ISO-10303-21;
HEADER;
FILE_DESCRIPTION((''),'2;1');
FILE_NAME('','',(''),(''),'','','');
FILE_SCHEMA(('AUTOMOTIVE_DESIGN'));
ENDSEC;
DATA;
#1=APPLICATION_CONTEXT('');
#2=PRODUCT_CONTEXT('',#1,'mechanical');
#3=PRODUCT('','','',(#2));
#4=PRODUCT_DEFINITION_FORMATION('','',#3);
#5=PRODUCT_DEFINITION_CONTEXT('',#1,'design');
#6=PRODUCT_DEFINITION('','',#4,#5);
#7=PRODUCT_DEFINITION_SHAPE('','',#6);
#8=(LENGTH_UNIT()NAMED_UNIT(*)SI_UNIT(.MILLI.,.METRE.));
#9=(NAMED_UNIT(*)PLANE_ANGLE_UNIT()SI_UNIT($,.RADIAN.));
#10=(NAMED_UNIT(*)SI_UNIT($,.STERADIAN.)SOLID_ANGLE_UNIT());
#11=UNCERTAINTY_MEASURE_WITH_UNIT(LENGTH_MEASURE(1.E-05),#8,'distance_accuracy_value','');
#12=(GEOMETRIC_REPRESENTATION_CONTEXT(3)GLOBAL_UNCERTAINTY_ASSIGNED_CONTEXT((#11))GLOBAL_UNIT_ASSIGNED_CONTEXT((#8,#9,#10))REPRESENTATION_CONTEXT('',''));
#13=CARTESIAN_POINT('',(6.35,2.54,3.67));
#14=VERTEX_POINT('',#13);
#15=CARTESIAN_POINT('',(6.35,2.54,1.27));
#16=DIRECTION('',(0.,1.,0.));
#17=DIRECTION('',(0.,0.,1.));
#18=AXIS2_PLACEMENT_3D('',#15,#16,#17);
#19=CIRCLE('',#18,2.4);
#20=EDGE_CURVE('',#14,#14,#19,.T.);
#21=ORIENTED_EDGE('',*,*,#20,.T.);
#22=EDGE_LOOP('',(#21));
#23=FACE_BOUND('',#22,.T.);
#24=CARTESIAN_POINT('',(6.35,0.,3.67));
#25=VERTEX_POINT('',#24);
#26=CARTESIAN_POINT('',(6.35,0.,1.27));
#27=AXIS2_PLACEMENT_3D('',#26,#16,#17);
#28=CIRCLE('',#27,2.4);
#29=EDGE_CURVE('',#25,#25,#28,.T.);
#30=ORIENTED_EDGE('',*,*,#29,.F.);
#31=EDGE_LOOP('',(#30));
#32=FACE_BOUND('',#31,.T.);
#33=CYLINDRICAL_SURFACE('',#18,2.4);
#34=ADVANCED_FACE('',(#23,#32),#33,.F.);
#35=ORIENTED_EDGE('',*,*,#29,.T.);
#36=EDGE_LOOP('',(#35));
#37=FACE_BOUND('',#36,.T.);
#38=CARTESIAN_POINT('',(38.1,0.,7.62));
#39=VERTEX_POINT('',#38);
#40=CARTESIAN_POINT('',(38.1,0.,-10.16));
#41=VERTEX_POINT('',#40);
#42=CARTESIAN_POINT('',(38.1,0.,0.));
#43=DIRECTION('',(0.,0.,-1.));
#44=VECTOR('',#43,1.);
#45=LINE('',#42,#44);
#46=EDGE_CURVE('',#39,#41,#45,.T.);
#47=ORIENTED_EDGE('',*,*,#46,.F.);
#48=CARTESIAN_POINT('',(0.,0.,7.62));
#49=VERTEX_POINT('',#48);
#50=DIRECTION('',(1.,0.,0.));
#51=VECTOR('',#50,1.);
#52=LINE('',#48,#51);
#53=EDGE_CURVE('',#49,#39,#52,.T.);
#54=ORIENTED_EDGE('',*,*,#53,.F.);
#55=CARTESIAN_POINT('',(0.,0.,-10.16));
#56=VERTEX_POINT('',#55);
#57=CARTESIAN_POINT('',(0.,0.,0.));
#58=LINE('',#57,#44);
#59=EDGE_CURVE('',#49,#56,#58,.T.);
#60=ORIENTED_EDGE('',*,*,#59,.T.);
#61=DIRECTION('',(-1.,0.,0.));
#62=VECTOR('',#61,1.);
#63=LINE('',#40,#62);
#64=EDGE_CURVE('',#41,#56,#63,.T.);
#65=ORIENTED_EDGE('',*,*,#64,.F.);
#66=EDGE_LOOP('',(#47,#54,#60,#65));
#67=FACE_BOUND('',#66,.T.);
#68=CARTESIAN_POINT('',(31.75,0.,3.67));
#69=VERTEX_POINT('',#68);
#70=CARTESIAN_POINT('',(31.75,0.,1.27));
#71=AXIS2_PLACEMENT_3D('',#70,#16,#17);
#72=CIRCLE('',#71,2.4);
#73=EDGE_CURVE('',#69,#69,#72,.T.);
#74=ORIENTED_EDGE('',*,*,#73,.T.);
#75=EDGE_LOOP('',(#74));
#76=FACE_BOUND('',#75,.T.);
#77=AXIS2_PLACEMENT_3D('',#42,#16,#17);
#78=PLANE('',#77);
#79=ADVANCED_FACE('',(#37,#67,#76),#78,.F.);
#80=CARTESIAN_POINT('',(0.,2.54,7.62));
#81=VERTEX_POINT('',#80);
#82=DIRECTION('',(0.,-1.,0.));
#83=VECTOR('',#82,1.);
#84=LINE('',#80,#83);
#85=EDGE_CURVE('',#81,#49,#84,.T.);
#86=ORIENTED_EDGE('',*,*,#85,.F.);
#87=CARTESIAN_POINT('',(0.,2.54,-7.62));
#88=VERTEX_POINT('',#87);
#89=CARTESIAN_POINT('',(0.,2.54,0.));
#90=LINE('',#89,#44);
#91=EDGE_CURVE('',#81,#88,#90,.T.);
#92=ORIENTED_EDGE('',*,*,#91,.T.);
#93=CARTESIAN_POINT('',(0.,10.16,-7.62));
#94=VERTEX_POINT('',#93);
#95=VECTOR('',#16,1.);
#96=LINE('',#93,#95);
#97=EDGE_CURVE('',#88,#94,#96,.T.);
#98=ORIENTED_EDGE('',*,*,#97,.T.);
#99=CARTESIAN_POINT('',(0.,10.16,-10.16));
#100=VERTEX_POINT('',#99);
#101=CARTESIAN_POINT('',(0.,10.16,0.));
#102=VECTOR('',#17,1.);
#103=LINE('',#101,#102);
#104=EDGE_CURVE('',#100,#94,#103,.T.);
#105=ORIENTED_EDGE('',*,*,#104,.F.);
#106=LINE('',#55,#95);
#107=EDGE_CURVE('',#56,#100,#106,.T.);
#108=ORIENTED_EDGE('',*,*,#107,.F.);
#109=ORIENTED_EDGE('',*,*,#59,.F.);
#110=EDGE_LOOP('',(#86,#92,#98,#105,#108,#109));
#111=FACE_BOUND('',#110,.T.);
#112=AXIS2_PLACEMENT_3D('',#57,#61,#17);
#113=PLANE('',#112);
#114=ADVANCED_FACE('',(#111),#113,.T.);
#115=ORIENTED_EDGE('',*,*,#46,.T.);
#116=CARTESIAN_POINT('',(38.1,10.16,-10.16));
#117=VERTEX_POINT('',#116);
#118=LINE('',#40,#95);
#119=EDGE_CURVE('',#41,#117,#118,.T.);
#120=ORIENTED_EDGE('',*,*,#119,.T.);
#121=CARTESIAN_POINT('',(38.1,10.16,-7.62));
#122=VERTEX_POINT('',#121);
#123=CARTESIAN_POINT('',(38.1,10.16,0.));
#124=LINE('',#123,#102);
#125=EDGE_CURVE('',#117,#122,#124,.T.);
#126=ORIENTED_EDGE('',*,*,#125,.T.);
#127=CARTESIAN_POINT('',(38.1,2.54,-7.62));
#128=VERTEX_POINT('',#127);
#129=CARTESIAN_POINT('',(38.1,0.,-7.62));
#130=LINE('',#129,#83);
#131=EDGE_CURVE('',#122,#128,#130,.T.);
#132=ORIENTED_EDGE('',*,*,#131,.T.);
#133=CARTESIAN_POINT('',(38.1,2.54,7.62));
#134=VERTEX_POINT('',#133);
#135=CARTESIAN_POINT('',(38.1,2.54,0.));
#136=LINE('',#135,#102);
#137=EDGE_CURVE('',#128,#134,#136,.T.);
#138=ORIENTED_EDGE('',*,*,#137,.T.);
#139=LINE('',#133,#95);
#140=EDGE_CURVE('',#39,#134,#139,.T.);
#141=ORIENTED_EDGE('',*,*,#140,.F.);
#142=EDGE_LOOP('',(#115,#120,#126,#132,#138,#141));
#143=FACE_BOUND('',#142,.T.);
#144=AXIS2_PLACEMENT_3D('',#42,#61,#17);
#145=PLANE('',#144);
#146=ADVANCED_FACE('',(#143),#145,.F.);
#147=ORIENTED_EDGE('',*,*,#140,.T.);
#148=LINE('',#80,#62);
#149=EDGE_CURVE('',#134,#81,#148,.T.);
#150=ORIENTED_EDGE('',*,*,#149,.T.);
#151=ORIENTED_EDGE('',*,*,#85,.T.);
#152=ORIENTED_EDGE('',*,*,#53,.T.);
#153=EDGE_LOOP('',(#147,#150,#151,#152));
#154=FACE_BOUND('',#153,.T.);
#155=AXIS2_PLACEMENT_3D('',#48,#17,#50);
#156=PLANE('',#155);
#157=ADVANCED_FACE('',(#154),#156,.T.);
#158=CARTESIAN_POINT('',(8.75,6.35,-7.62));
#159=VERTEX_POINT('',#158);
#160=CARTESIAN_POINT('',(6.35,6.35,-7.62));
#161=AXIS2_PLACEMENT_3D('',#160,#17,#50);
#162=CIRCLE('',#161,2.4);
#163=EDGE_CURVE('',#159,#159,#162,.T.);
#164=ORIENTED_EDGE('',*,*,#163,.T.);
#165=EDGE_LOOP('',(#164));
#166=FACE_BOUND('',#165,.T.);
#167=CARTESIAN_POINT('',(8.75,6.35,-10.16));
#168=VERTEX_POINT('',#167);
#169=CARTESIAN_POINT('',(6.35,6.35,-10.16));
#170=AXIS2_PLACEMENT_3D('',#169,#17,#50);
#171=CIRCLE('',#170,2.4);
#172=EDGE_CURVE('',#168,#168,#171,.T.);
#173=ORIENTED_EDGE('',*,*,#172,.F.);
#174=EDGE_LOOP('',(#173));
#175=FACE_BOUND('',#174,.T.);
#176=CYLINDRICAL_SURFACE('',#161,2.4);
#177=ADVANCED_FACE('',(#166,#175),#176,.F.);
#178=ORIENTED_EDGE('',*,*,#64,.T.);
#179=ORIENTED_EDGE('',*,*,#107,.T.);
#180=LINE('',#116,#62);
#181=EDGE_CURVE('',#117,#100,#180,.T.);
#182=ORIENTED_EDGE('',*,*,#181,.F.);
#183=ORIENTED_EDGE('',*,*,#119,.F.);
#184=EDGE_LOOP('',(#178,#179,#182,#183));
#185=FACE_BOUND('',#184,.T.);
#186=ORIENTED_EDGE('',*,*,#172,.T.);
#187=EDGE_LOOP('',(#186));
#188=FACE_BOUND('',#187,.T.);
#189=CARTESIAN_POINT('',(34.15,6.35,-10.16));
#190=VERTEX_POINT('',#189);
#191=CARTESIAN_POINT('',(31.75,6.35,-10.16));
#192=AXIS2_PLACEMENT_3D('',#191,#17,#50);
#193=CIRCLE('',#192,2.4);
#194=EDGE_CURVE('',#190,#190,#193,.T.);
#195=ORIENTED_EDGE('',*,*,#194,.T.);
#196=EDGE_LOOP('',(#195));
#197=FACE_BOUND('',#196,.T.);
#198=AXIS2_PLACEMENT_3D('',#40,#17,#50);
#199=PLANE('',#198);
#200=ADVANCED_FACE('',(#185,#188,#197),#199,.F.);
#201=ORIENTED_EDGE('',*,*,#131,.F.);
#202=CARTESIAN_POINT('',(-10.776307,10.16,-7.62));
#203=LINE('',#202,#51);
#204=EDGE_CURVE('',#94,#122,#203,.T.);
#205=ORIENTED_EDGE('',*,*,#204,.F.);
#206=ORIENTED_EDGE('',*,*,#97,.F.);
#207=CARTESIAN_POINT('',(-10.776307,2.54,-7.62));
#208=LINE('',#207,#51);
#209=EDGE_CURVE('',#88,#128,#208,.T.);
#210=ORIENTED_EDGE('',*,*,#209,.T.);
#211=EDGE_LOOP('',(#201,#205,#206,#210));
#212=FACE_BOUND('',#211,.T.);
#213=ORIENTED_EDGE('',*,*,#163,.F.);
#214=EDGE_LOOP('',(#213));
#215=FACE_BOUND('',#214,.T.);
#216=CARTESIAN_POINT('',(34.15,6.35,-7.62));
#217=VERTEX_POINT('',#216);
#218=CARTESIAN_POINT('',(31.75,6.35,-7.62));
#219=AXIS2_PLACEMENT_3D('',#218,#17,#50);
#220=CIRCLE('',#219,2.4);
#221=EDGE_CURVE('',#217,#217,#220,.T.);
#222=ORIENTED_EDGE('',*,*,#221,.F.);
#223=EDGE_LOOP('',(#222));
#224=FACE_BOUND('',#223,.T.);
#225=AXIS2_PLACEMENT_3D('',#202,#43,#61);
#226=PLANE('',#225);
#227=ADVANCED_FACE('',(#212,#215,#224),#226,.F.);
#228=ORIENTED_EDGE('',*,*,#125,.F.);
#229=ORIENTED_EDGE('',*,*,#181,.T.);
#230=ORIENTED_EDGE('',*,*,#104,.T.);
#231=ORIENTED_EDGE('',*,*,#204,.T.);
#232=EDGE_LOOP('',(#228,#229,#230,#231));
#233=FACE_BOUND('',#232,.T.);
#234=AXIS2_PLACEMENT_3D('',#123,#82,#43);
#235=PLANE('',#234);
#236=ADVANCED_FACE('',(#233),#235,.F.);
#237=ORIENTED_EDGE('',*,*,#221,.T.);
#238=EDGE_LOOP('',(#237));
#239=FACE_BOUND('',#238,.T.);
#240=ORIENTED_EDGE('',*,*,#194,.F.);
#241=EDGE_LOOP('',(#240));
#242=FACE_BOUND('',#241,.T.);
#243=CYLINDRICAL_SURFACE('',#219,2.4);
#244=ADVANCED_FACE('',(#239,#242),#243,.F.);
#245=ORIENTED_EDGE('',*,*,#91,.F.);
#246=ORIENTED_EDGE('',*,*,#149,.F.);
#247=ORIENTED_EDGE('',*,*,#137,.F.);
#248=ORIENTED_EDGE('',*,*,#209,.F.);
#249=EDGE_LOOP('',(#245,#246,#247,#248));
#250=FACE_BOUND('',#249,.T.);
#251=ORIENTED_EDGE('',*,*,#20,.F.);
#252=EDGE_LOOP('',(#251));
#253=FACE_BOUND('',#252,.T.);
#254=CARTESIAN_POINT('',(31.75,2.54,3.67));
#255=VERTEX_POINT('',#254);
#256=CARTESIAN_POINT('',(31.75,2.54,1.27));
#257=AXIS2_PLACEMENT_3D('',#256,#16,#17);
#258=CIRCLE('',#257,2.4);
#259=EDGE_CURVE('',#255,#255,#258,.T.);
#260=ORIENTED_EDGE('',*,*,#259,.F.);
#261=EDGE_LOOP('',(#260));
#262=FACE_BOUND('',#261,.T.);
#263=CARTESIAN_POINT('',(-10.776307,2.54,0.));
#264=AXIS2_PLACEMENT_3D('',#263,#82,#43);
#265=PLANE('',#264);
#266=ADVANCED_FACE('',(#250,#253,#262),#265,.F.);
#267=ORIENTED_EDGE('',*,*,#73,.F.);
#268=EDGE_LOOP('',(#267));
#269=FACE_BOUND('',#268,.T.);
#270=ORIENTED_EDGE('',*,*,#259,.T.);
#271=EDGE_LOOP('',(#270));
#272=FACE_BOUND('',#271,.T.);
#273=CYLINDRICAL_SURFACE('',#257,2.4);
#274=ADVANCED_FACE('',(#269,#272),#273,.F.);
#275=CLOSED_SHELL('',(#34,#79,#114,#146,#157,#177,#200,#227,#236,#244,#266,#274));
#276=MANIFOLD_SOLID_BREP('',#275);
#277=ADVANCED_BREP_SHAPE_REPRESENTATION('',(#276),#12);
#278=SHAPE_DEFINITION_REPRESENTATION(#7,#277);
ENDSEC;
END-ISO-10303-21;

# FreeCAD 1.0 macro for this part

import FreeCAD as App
import Part
import Sketcher

V = App.Vector
Q = App.Units.Quantity

doc = App.newDocument("Part")
body = doc.addObject("PartDesign::Body", "Body")

# Sketch on YZ plane
sketch1 = body.newObject("Sketcher::SketchObject", "Sketch")
sketch1.AttachmentSupport = (doc.getObject("YZ_Plane"), [""])
sketch1.MapMode = "FlatFace"
sketch1.addGeometry([
    Part.LineSegment(V(10, 0, 0), V(0, 0, 0)),
    Part.LineSegment(V(0, 0, 0), V(0, -10, 0)),
    Part.LineSegment(V(0, -10, 0), V(10, -10, 0)),
    Part.LineSegment(V(10, -10, 0), V(10, 0, 0)),
], False)
sketch1.addConstraint([
    Sketcher.Constraint("Coincident", 0, 2, 1, 1),
    Sketcher.Constraint("Coincident", 1, 2, 2, 1),
    Sketcher.Constraint("Coincident", 2, 2, 3, 1),
    Sketcher.Constraint("Coincident", 3, 2, 0, 1),
    Sketcher.Constraint("Horizontal", 0),
    Sketcher.Constraint("Vertical", 1),
    Sketcher.Constraint("Horizontal", 2),
    Sketcher.Constraint("Vertical", 3),
    Sketcher.Constraint("Coincident", 0, 2, -1, 1),
    Sketcher.Constraint("Equal", 2, 1),
    Sketcher.Constraint("DistanceX", 0, 2, 0, 1, Q("0.4 in")),
])
pad1 = body.newObject("PartDesign::Pad", "Pad")
pad1.Profile = sketch1
pad1.Length = Q("1.5 in")

# Sketch on YZ plane
sketch2 = body.newObject("Sketcher::SketchObject", "Sketch001")
sketch2.AttachmentSupport = (doc.getObject("YZ_Plane"), [""])
sketch2.MapMode = "FlatFace"
sketch2.AttachmentOffset = App.Placement(V(0, 0, 1.5 * 25.4), App.Rotation())
sketch2.addGeometry([
    Part.LineSegment(V(10, 0, 0), V(3, 0, 0)),
    Part.LineSegment(V(3, 0, 0), V(3, -8, 0)),
    Part.LineSegment(V(3, -8, 0), V(10, -8, 0)),
    Part.LineSegment(V(10, -8, 0), V(10, 0, 0)),
], False)
sketch2.addConstraint([
    Sketcher.Constraint("Coincident", 0, 2, 1, 1),
    Sketcher.Constraint("Coincident", 1, 2, 2, 1),
    Sketcher.Constraint("Coincident", 2, 2, 3, 1),
    Sketcher.Constraint("Coincident", 3, 2, 0, 1),
    Sketcher.Constraint("Horizontal", 0),
    Sketcher.Constraint("Vertical", 1),
    Sketcher.Constraint("Horizontal", 2),
    Sketcher.Constraint("Vertical", 3),
    Sketcher.Constraint("PointOnObject", 0, 2, -1),
    Sketcher.Constraint("Equal", 2, 1),
    Sketcher.Constraint("DistanceX", 0, 2, 0, 1, Q("0.3 in")),
    Sketcher.Constraint("DistanceX", -1, 1, 0, 2, Q("0.1 in")),
])
pocket1 = body.newObject("PartDesign::Pocket", "Pocket")
pocket1.Profile = sketch2
pocket1.Type = "ThroughAll"
pocket1.Midplane = True

# Sketch on XY plane
sketch3 = body.newObject("Sketcher::SketchObject", "Sketch002")
sketch3.AttachmentSupport = (doc.getObject("XY_Plane"), [""])
sketch3.MapMode = "FlatFace"
sketch3.AttachmentOffset = App.Placement(V(0, 0, -0.3 * 25.4), App.Rotation())
sketch3.addGeometry([
    Part.Circle(V(6.3, 6.3, 0), V(0, 0, 1), 2.4),
    Part.Circle(V(31.8, 6.3, 0), V(0, 0, 1), 2.4),
], False)
sketch3.addConstraint([
    Sketcher.Constraint("Equal", 0, 1),
    Sketcher.Constraint("Horizontal", 0, 3, 1, 3),
    Sketcher.Constraint("DistanceX", 0, 3, 1, 3, Q("1 in")),
    Sketcher.Constraint("Diameter", 0, 4.8),
    Sketcher.Constraint("DistanceX", -1, 1, 0, 3, Q("0.25 in")),
    Sketcher.Constraint("DistanceY", -1, 1, 0, 3, Q("0.25 in")),
])
doc.recompute()
hole = body.newObject("PartDesign::Hole", "Hole")
hole.Profile = sketch3
hole.ThreadType = "None"
hole.Diameter = 4.8
hole.DepthType = "ThroughAll"

# Sketch on XY plane
sketch4 = body.newObject("Sketcher::SketchObject", "Sketch003")
sketch4.AttachmentSupport = (doc.getObject("XY_Plane"), [""])
sketch4.MapMode = "FlatFace"
sketch4.addGeometry([
    Part.LineSegment(V(0, 2.5, 0), V(0, 0, 0)),
    Part.LineSegment(V(0, 0, 0), V(38.1, 0, 0)),
    Part.LineSegment(V(38.1, 0, 0), V(38.1, 2.5, 0)),
    Part.LineSegment(V(38.1, 2.5, 0), V(0, 2.5, 0)),
], False)
sketch4.addConstraint([
    Sketcher.Constraint("Coincident", 0, 2, 1, 1),
    Sketcher.Constraint("Coincident", 1, 2, 2, 1),
    Sketcher.Constraint("Coincident", 2, 2, 3, 1),
    Sketcher.Constraint("Coincident", 3, 2, 0, 1),
    Sketcher.Constraint("Vertical", 0),
    Sketcher.Constraint("Horizontal", 1),
    Sketcher.Constraint("Vertical", 2),
    Sketcher.Constraint("Horizontal", 3),
    Sketcher.Constraint("Coincident", 0, 2, -1, 1),
    Sketcher.Constraint("DistanceX", 1, 1, 1, 2, Q("1.5 in")),
    Sketcher.Constraint("DistanceY", 0, 2, 0, 1, Q("0.1 in")),
])
pad2 = body.newObject("PartDesign::Pad", "Pad001")
pad2.Profile = sketch4
pad2.Length = Q("0.3 in")

# Sketch on XZ plane
sketch5 = body.newObject("Sketcher::SketchObject", "Sketch004")
sketch5.AttachmentSupport = (doc.getObject("XZ_Plane"), [""])
sketch5.MapMode = "FlatFace"
sketch5.AttachmentOffset = App.Placement(V(0, 0, -0.1 * 25.4), App.Rotation())
sketch5.addGeometry([
    Part.Circle(V(6.3, 1.3, 0), V(0, 0, 1), 2.4),
    Part.Circle(V(31.8, 1.3, 0), V(0, 0, 1), 2.4),
], False)
sketch5.addConstraint([
    Sketcher.Constraint("Equal", 0, 1),
    Sketcher.Constraint("Horizontal", 0, 3, 1, 3),
    Sketcher.Constraint("DistanceX", 0, 3, 1, 3, Q("1 in")),
    Sketcher.Constraint("Diameter", 0, 4.8),
    Sketcher.Constraint("DistanceX", -1, 1, 0, 3, Q("0.25 in")),
    Sketcher.Constraint("DistanceY", -1, 1, 0, 3, Q("0.05 in")),
])
doc.recompute()
hole2 = body.newObject("PartDesign::Hole", "Hole001")
hole2.Profile = sketch5
hole2.ThreadType = "None"
hole2.Diameter = 4.8
hole2.DepthType = "ThroughAll"
hole2.Reversed = True

doc.recompute()
